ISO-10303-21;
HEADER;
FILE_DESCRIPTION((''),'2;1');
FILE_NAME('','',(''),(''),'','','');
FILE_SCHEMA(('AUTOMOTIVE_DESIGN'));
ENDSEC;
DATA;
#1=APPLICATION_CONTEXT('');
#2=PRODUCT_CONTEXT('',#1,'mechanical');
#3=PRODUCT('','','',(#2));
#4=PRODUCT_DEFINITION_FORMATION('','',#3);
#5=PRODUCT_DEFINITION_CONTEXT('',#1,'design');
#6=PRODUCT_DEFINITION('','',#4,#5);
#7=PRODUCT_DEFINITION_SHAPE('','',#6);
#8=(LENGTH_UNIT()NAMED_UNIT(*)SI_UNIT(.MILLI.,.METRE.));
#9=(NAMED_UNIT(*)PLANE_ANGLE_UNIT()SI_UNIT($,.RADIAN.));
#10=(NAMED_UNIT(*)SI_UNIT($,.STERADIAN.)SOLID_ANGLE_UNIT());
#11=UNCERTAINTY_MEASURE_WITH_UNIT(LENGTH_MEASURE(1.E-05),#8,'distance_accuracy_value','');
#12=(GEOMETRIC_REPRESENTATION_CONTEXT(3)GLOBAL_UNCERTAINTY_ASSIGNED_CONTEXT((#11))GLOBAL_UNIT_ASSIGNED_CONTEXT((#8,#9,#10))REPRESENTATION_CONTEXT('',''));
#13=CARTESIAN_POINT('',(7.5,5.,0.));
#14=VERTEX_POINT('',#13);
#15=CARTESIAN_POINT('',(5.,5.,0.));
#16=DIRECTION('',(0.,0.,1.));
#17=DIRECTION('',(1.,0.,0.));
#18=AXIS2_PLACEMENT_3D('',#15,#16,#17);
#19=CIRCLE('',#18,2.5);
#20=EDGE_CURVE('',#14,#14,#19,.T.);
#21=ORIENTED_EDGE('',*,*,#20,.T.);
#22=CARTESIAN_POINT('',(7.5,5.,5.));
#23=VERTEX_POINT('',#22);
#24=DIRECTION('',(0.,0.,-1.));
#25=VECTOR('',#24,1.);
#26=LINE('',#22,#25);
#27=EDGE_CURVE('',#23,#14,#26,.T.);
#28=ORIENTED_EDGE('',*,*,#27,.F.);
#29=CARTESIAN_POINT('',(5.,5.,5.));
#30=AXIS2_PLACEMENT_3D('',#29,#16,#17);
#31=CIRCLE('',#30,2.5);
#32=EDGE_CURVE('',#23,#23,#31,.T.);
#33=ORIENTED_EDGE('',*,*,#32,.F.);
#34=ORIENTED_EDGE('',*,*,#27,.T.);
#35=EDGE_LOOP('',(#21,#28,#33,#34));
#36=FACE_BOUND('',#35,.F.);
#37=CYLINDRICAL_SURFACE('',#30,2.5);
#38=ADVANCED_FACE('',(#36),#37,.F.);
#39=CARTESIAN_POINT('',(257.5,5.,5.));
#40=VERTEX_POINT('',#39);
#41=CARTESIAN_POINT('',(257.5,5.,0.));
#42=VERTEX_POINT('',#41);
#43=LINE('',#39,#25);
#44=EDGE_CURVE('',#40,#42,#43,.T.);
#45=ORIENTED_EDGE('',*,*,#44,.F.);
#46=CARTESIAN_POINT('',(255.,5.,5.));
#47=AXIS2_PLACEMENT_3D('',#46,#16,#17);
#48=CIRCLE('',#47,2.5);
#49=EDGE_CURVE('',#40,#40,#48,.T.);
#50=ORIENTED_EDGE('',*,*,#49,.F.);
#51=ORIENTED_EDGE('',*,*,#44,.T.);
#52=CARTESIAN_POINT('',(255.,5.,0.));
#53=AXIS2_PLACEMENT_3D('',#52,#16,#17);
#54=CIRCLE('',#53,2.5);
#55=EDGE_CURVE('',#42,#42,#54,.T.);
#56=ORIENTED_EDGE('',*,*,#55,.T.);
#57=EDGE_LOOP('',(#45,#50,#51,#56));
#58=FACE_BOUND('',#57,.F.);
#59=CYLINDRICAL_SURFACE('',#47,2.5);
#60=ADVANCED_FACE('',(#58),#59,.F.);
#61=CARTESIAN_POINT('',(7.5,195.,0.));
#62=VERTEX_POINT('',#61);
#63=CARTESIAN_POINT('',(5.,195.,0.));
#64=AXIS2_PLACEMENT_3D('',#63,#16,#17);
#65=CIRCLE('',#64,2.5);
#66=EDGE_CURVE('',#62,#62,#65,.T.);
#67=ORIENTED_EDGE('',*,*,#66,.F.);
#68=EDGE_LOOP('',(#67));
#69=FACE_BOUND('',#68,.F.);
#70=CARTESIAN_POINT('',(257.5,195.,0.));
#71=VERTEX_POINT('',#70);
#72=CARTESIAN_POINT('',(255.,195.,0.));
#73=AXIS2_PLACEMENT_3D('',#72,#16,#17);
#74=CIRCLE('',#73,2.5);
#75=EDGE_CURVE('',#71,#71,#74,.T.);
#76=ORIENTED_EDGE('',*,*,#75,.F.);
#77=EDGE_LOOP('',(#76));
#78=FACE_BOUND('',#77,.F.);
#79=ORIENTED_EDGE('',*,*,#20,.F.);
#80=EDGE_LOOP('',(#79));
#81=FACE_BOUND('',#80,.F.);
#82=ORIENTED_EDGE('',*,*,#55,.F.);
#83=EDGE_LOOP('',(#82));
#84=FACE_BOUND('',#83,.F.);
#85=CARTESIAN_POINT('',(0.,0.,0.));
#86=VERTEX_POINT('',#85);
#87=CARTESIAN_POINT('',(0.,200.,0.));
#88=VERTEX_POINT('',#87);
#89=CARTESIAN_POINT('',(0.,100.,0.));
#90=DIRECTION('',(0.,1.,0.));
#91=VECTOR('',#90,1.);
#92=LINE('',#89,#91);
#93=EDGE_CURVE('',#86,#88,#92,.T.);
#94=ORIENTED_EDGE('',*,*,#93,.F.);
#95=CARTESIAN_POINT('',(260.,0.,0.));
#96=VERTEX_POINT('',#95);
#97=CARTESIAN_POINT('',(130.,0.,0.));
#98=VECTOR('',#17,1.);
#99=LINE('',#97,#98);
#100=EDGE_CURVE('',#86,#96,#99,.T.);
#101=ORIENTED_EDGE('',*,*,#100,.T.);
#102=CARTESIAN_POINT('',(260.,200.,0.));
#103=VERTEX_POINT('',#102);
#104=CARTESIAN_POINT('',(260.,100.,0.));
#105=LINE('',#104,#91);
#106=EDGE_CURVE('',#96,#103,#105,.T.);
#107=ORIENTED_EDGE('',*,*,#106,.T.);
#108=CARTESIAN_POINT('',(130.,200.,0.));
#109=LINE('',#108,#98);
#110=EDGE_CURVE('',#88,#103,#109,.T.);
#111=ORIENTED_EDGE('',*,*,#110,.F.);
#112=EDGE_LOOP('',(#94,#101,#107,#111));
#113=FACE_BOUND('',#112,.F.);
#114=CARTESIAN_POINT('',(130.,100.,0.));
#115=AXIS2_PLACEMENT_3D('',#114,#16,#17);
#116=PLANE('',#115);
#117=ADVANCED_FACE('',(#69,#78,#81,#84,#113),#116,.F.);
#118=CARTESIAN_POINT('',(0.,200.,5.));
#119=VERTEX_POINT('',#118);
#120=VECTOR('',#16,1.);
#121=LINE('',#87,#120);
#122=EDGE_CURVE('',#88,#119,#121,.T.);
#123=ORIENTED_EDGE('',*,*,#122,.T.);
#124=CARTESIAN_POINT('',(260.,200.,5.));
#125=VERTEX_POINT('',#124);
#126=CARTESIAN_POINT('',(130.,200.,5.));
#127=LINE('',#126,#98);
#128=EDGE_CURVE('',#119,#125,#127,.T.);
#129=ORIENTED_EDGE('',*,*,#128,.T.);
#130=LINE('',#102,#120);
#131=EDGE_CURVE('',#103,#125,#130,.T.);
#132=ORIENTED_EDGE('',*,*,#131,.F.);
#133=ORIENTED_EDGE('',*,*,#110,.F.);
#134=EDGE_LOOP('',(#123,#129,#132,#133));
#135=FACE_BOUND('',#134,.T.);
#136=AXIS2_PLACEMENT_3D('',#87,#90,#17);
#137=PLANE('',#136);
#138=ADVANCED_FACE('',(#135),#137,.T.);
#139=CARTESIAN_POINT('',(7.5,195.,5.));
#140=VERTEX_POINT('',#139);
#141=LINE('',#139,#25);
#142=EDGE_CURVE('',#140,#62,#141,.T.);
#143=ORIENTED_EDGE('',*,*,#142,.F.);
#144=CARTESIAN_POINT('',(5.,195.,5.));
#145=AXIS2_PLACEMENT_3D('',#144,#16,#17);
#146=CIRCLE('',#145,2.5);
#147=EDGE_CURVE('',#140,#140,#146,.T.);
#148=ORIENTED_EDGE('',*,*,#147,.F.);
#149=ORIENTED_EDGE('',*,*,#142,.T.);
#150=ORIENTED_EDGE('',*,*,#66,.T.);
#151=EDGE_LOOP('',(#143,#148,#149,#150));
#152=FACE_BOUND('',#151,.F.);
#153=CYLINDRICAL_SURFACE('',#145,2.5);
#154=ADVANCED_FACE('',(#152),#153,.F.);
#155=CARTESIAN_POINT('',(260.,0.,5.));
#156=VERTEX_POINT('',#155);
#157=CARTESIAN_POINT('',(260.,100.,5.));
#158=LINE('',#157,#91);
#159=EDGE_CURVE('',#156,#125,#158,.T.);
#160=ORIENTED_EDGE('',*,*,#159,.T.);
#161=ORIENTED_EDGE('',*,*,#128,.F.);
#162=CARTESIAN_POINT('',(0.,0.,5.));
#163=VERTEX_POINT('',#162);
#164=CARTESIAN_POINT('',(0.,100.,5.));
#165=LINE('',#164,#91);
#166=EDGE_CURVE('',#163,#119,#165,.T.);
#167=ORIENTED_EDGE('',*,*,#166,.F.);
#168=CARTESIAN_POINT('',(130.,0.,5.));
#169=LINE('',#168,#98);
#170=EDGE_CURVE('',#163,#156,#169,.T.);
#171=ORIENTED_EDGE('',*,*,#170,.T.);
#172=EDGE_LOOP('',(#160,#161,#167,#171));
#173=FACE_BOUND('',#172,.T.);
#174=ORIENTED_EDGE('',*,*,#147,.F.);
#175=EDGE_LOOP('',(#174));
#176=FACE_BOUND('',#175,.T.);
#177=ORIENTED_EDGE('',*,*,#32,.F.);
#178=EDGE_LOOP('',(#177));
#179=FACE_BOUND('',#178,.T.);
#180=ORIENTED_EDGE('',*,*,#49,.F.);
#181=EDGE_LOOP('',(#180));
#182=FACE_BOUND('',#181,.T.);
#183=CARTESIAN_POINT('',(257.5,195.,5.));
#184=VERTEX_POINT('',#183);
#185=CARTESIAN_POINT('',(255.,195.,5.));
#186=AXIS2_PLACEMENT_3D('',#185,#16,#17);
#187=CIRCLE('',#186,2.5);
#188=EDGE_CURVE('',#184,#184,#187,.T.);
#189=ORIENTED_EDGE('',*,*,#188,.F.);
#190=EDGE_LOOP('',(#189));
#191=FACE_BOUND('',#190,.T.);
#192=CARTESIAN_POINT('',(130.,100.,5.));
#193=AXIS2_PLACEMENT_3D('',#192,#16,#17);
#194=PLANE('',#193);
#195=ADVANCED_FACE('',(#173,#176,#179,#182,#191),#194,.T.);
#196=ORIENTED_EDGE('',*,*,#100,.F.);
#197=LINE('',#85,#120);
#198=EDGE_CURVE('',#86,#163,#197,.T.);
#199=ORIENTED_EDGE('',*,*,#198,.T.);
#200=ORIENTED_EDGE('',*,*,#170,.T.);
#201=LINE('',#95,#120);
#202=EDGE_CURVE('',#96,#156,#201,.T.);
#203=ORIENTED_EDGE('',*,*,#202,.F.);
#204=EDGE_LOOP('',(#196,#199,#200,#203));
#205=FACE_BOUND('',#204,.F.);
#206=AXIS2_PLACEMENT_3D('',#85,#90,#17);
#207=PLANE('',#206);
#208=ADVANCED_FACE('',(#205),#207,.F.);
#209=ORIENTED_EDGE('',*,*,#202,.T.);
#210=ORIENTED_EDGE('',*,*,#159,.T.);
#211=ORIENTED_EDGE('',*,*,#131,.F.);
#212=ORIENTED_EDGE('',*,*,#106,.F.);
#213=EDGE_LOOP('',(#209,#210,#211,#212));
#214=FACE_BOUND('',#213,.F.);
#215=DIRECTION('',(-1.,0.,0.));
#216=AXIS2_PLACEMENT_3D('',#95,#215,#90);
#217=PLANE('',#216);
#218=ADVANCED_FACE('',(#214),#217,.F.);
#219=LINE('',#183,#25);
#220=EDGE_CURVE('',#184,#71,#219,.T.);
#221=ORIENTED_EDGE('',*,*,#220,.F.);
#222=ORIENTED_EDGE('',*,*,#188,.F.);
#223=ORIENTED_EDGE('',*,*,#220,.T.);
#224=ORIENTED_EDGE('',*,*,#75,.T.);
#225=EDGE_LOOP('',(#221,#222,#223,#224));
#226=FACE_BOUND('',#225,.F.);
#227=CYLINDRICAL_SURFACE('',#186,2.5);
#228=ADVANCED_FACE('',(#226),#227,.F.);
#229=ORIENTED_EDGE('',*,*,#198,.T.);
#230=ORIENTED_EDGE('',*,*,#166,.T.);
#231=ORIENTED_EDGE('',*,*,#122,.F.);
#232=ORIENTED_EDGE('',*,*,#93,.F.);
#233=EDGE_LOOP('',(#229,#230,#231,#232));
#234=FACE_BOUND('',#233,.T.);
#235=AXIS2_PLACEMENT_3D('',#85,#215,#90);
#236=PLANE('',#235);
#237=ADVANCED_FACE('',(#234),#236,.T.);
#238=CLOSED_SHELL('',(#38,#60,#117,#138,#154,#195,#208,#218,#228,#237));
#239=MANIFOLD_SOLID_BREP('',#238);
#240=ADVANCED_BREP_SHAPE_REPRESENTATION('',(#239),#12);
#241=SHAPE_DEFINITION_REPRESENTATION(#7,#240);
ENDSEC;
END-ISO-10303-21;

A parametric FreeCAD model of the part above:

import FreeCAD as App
import Part
import Sketcher
from FreeCAD import Vector
Q = App.Units.Quantity

doc = App.newDocument("Part")
body = doc.addObject("PartDesign::Body", "Body")

# Sketch on XY plane
sketch1 = doc.addObject("Sketcher::SketchObject", "Sketch")
body.addObject(sketch1)
sketch1.AttachmentSupport = (doc.XY_Plane, [""])
sketch1.MapMode = "FlatFace"
sketch1.addGeometry(Part.LineSegment(Vector(0, 200, 0), Vector(0, 0, 0)), False)
sketch1.addGeometry(Part.LineSegment(Vector(0, 0, 0), Vector(260, 0, 0)), False)
sketch1.addGeometry(Part.LineSegment(Vector(260, 0, 0), Vector(260, 200, 0)), False)
sketch1.addGeometry(Part.LineSegment(Vector(260, 200, 0), Vector(0, 200, 0)), False)
sketch1.addConstraint(Sketcher.Constraint("Coincident", 0, 2, 1, 1))
sketch1.addConstraint(Sketcher.Constraint("Coincident", 1, 2, 2, 1))
sketch1.addConstraint(Sketcher.Constraint("Coincident", 2, 2, 3, 1))
sketch1.addConstraint(Sketcher.Constraint("Coincident", 3, 2, 0, 1))
sketch1.addConstraint(Sketcher.Constraint("Vertical", 0))
sketch1.addConstraint(Sketcher.Constraint("Horizontal", 1))
sketch1.addConstraint(Sketcher.Constraint("Vertical", 2))
sketch1.addConstraint(Sketcher.Constraint("Horizontal", 3))
sketch1.addConstraint(Sketcher.Constraint("Coincident", 0, 2, -1, 1))
sketch1.addConstraint(Sketcher.Constraint("DistanceX", 1, 1, 1, 2, Q("260 mm")))
sketch1.addConstraint(Sketcher.Constraint("DistanceY", 0, 2, 0, 1, Q("200 mm")))
pad1 = doc.addObject("PartDesign::Pad", "Pad")
body.addObject(pad1)
pad1.Profile = sketch1
pad1.Length = 5

# Sketch on XY plane
sketch2 = doc.addObject("Sketcher::SketchObject", "Sketch001")
body.addObject(sketch2)
sketch2.AttachmentSupport = (doc.XY_Plane, [""])
sketch2.MapMode = "FlatFace"
sketch2.AttachmentOffset = App.Placement(Vector(0, 0, 5), App.Rotation())
sketch2.addGeometry(Part.Circle(Vector(5, 5, 0), Vector(0, 0, 1), 2.5), False)
sketch2.addGeometry(Part.Circle(Vector(5, 195, 0), Vector(0, 0, 1), 2.5), False)
sketch2.addGeometry(Part.Circle(Vector(255, 195, 0), Vector(0, 0, 1), 2.5), False)
sketch2.addGeometry(Part.Circle(Vector(255, 5, 0), Vector(0, 0, 1), 2.5), False)
sketch2.addConstraint(Sketcher.Constraint("Equal", 0, 1))
sketch2.addConstraint(Sketcher.Constraint("Equal", 1, 2))
sketch2.addConstraint(Sketcher.Constraint("Equal", 2, 3))
sketch2.addConstraint(Sketcher.Constraint("Horizontal", 1, 3, 2, 3))
sketch2.addConstraint(Sketcher.Constraint("Horizontal", 0, 3, 3, 3))
sketch2.addConstraint(Sketcher.Constraint("Vertical", 0, 3, 1, 3))
sketch2.addConstraint(Sketcher.Constraint("Vertical", 2, 3, 3, 3))
sketch2.addConstraint(Sketcher.Constraint("Diameter", 0, Q("5 mm")))
sketch2.addConstraint(Sketcher.Constraint("DistanceX", -1, 1, 0, 3, Q("5 mm")))
sketch2.addConstraint(Sketcher.Constraint("DistanceY", -1, 1, 0, 3, Q("5 mm")))
sketch2.addConstraint(Sketcher.Constraint("DistanceY", -1, 1, 1, 3, Q("195 mm")))
sketch2.addConstraint(Sketcher.Constraint("DistanceX", -1, 1, 2, 3, Q("255 mm")))
pocket1 = doc.addObject("PartDesign::Pocket", "Pocket")
body.addObject(pocket1)
pocket1.Profile = sketch2
pocket1.Type = "ThroughAll"

doc.recompute()
